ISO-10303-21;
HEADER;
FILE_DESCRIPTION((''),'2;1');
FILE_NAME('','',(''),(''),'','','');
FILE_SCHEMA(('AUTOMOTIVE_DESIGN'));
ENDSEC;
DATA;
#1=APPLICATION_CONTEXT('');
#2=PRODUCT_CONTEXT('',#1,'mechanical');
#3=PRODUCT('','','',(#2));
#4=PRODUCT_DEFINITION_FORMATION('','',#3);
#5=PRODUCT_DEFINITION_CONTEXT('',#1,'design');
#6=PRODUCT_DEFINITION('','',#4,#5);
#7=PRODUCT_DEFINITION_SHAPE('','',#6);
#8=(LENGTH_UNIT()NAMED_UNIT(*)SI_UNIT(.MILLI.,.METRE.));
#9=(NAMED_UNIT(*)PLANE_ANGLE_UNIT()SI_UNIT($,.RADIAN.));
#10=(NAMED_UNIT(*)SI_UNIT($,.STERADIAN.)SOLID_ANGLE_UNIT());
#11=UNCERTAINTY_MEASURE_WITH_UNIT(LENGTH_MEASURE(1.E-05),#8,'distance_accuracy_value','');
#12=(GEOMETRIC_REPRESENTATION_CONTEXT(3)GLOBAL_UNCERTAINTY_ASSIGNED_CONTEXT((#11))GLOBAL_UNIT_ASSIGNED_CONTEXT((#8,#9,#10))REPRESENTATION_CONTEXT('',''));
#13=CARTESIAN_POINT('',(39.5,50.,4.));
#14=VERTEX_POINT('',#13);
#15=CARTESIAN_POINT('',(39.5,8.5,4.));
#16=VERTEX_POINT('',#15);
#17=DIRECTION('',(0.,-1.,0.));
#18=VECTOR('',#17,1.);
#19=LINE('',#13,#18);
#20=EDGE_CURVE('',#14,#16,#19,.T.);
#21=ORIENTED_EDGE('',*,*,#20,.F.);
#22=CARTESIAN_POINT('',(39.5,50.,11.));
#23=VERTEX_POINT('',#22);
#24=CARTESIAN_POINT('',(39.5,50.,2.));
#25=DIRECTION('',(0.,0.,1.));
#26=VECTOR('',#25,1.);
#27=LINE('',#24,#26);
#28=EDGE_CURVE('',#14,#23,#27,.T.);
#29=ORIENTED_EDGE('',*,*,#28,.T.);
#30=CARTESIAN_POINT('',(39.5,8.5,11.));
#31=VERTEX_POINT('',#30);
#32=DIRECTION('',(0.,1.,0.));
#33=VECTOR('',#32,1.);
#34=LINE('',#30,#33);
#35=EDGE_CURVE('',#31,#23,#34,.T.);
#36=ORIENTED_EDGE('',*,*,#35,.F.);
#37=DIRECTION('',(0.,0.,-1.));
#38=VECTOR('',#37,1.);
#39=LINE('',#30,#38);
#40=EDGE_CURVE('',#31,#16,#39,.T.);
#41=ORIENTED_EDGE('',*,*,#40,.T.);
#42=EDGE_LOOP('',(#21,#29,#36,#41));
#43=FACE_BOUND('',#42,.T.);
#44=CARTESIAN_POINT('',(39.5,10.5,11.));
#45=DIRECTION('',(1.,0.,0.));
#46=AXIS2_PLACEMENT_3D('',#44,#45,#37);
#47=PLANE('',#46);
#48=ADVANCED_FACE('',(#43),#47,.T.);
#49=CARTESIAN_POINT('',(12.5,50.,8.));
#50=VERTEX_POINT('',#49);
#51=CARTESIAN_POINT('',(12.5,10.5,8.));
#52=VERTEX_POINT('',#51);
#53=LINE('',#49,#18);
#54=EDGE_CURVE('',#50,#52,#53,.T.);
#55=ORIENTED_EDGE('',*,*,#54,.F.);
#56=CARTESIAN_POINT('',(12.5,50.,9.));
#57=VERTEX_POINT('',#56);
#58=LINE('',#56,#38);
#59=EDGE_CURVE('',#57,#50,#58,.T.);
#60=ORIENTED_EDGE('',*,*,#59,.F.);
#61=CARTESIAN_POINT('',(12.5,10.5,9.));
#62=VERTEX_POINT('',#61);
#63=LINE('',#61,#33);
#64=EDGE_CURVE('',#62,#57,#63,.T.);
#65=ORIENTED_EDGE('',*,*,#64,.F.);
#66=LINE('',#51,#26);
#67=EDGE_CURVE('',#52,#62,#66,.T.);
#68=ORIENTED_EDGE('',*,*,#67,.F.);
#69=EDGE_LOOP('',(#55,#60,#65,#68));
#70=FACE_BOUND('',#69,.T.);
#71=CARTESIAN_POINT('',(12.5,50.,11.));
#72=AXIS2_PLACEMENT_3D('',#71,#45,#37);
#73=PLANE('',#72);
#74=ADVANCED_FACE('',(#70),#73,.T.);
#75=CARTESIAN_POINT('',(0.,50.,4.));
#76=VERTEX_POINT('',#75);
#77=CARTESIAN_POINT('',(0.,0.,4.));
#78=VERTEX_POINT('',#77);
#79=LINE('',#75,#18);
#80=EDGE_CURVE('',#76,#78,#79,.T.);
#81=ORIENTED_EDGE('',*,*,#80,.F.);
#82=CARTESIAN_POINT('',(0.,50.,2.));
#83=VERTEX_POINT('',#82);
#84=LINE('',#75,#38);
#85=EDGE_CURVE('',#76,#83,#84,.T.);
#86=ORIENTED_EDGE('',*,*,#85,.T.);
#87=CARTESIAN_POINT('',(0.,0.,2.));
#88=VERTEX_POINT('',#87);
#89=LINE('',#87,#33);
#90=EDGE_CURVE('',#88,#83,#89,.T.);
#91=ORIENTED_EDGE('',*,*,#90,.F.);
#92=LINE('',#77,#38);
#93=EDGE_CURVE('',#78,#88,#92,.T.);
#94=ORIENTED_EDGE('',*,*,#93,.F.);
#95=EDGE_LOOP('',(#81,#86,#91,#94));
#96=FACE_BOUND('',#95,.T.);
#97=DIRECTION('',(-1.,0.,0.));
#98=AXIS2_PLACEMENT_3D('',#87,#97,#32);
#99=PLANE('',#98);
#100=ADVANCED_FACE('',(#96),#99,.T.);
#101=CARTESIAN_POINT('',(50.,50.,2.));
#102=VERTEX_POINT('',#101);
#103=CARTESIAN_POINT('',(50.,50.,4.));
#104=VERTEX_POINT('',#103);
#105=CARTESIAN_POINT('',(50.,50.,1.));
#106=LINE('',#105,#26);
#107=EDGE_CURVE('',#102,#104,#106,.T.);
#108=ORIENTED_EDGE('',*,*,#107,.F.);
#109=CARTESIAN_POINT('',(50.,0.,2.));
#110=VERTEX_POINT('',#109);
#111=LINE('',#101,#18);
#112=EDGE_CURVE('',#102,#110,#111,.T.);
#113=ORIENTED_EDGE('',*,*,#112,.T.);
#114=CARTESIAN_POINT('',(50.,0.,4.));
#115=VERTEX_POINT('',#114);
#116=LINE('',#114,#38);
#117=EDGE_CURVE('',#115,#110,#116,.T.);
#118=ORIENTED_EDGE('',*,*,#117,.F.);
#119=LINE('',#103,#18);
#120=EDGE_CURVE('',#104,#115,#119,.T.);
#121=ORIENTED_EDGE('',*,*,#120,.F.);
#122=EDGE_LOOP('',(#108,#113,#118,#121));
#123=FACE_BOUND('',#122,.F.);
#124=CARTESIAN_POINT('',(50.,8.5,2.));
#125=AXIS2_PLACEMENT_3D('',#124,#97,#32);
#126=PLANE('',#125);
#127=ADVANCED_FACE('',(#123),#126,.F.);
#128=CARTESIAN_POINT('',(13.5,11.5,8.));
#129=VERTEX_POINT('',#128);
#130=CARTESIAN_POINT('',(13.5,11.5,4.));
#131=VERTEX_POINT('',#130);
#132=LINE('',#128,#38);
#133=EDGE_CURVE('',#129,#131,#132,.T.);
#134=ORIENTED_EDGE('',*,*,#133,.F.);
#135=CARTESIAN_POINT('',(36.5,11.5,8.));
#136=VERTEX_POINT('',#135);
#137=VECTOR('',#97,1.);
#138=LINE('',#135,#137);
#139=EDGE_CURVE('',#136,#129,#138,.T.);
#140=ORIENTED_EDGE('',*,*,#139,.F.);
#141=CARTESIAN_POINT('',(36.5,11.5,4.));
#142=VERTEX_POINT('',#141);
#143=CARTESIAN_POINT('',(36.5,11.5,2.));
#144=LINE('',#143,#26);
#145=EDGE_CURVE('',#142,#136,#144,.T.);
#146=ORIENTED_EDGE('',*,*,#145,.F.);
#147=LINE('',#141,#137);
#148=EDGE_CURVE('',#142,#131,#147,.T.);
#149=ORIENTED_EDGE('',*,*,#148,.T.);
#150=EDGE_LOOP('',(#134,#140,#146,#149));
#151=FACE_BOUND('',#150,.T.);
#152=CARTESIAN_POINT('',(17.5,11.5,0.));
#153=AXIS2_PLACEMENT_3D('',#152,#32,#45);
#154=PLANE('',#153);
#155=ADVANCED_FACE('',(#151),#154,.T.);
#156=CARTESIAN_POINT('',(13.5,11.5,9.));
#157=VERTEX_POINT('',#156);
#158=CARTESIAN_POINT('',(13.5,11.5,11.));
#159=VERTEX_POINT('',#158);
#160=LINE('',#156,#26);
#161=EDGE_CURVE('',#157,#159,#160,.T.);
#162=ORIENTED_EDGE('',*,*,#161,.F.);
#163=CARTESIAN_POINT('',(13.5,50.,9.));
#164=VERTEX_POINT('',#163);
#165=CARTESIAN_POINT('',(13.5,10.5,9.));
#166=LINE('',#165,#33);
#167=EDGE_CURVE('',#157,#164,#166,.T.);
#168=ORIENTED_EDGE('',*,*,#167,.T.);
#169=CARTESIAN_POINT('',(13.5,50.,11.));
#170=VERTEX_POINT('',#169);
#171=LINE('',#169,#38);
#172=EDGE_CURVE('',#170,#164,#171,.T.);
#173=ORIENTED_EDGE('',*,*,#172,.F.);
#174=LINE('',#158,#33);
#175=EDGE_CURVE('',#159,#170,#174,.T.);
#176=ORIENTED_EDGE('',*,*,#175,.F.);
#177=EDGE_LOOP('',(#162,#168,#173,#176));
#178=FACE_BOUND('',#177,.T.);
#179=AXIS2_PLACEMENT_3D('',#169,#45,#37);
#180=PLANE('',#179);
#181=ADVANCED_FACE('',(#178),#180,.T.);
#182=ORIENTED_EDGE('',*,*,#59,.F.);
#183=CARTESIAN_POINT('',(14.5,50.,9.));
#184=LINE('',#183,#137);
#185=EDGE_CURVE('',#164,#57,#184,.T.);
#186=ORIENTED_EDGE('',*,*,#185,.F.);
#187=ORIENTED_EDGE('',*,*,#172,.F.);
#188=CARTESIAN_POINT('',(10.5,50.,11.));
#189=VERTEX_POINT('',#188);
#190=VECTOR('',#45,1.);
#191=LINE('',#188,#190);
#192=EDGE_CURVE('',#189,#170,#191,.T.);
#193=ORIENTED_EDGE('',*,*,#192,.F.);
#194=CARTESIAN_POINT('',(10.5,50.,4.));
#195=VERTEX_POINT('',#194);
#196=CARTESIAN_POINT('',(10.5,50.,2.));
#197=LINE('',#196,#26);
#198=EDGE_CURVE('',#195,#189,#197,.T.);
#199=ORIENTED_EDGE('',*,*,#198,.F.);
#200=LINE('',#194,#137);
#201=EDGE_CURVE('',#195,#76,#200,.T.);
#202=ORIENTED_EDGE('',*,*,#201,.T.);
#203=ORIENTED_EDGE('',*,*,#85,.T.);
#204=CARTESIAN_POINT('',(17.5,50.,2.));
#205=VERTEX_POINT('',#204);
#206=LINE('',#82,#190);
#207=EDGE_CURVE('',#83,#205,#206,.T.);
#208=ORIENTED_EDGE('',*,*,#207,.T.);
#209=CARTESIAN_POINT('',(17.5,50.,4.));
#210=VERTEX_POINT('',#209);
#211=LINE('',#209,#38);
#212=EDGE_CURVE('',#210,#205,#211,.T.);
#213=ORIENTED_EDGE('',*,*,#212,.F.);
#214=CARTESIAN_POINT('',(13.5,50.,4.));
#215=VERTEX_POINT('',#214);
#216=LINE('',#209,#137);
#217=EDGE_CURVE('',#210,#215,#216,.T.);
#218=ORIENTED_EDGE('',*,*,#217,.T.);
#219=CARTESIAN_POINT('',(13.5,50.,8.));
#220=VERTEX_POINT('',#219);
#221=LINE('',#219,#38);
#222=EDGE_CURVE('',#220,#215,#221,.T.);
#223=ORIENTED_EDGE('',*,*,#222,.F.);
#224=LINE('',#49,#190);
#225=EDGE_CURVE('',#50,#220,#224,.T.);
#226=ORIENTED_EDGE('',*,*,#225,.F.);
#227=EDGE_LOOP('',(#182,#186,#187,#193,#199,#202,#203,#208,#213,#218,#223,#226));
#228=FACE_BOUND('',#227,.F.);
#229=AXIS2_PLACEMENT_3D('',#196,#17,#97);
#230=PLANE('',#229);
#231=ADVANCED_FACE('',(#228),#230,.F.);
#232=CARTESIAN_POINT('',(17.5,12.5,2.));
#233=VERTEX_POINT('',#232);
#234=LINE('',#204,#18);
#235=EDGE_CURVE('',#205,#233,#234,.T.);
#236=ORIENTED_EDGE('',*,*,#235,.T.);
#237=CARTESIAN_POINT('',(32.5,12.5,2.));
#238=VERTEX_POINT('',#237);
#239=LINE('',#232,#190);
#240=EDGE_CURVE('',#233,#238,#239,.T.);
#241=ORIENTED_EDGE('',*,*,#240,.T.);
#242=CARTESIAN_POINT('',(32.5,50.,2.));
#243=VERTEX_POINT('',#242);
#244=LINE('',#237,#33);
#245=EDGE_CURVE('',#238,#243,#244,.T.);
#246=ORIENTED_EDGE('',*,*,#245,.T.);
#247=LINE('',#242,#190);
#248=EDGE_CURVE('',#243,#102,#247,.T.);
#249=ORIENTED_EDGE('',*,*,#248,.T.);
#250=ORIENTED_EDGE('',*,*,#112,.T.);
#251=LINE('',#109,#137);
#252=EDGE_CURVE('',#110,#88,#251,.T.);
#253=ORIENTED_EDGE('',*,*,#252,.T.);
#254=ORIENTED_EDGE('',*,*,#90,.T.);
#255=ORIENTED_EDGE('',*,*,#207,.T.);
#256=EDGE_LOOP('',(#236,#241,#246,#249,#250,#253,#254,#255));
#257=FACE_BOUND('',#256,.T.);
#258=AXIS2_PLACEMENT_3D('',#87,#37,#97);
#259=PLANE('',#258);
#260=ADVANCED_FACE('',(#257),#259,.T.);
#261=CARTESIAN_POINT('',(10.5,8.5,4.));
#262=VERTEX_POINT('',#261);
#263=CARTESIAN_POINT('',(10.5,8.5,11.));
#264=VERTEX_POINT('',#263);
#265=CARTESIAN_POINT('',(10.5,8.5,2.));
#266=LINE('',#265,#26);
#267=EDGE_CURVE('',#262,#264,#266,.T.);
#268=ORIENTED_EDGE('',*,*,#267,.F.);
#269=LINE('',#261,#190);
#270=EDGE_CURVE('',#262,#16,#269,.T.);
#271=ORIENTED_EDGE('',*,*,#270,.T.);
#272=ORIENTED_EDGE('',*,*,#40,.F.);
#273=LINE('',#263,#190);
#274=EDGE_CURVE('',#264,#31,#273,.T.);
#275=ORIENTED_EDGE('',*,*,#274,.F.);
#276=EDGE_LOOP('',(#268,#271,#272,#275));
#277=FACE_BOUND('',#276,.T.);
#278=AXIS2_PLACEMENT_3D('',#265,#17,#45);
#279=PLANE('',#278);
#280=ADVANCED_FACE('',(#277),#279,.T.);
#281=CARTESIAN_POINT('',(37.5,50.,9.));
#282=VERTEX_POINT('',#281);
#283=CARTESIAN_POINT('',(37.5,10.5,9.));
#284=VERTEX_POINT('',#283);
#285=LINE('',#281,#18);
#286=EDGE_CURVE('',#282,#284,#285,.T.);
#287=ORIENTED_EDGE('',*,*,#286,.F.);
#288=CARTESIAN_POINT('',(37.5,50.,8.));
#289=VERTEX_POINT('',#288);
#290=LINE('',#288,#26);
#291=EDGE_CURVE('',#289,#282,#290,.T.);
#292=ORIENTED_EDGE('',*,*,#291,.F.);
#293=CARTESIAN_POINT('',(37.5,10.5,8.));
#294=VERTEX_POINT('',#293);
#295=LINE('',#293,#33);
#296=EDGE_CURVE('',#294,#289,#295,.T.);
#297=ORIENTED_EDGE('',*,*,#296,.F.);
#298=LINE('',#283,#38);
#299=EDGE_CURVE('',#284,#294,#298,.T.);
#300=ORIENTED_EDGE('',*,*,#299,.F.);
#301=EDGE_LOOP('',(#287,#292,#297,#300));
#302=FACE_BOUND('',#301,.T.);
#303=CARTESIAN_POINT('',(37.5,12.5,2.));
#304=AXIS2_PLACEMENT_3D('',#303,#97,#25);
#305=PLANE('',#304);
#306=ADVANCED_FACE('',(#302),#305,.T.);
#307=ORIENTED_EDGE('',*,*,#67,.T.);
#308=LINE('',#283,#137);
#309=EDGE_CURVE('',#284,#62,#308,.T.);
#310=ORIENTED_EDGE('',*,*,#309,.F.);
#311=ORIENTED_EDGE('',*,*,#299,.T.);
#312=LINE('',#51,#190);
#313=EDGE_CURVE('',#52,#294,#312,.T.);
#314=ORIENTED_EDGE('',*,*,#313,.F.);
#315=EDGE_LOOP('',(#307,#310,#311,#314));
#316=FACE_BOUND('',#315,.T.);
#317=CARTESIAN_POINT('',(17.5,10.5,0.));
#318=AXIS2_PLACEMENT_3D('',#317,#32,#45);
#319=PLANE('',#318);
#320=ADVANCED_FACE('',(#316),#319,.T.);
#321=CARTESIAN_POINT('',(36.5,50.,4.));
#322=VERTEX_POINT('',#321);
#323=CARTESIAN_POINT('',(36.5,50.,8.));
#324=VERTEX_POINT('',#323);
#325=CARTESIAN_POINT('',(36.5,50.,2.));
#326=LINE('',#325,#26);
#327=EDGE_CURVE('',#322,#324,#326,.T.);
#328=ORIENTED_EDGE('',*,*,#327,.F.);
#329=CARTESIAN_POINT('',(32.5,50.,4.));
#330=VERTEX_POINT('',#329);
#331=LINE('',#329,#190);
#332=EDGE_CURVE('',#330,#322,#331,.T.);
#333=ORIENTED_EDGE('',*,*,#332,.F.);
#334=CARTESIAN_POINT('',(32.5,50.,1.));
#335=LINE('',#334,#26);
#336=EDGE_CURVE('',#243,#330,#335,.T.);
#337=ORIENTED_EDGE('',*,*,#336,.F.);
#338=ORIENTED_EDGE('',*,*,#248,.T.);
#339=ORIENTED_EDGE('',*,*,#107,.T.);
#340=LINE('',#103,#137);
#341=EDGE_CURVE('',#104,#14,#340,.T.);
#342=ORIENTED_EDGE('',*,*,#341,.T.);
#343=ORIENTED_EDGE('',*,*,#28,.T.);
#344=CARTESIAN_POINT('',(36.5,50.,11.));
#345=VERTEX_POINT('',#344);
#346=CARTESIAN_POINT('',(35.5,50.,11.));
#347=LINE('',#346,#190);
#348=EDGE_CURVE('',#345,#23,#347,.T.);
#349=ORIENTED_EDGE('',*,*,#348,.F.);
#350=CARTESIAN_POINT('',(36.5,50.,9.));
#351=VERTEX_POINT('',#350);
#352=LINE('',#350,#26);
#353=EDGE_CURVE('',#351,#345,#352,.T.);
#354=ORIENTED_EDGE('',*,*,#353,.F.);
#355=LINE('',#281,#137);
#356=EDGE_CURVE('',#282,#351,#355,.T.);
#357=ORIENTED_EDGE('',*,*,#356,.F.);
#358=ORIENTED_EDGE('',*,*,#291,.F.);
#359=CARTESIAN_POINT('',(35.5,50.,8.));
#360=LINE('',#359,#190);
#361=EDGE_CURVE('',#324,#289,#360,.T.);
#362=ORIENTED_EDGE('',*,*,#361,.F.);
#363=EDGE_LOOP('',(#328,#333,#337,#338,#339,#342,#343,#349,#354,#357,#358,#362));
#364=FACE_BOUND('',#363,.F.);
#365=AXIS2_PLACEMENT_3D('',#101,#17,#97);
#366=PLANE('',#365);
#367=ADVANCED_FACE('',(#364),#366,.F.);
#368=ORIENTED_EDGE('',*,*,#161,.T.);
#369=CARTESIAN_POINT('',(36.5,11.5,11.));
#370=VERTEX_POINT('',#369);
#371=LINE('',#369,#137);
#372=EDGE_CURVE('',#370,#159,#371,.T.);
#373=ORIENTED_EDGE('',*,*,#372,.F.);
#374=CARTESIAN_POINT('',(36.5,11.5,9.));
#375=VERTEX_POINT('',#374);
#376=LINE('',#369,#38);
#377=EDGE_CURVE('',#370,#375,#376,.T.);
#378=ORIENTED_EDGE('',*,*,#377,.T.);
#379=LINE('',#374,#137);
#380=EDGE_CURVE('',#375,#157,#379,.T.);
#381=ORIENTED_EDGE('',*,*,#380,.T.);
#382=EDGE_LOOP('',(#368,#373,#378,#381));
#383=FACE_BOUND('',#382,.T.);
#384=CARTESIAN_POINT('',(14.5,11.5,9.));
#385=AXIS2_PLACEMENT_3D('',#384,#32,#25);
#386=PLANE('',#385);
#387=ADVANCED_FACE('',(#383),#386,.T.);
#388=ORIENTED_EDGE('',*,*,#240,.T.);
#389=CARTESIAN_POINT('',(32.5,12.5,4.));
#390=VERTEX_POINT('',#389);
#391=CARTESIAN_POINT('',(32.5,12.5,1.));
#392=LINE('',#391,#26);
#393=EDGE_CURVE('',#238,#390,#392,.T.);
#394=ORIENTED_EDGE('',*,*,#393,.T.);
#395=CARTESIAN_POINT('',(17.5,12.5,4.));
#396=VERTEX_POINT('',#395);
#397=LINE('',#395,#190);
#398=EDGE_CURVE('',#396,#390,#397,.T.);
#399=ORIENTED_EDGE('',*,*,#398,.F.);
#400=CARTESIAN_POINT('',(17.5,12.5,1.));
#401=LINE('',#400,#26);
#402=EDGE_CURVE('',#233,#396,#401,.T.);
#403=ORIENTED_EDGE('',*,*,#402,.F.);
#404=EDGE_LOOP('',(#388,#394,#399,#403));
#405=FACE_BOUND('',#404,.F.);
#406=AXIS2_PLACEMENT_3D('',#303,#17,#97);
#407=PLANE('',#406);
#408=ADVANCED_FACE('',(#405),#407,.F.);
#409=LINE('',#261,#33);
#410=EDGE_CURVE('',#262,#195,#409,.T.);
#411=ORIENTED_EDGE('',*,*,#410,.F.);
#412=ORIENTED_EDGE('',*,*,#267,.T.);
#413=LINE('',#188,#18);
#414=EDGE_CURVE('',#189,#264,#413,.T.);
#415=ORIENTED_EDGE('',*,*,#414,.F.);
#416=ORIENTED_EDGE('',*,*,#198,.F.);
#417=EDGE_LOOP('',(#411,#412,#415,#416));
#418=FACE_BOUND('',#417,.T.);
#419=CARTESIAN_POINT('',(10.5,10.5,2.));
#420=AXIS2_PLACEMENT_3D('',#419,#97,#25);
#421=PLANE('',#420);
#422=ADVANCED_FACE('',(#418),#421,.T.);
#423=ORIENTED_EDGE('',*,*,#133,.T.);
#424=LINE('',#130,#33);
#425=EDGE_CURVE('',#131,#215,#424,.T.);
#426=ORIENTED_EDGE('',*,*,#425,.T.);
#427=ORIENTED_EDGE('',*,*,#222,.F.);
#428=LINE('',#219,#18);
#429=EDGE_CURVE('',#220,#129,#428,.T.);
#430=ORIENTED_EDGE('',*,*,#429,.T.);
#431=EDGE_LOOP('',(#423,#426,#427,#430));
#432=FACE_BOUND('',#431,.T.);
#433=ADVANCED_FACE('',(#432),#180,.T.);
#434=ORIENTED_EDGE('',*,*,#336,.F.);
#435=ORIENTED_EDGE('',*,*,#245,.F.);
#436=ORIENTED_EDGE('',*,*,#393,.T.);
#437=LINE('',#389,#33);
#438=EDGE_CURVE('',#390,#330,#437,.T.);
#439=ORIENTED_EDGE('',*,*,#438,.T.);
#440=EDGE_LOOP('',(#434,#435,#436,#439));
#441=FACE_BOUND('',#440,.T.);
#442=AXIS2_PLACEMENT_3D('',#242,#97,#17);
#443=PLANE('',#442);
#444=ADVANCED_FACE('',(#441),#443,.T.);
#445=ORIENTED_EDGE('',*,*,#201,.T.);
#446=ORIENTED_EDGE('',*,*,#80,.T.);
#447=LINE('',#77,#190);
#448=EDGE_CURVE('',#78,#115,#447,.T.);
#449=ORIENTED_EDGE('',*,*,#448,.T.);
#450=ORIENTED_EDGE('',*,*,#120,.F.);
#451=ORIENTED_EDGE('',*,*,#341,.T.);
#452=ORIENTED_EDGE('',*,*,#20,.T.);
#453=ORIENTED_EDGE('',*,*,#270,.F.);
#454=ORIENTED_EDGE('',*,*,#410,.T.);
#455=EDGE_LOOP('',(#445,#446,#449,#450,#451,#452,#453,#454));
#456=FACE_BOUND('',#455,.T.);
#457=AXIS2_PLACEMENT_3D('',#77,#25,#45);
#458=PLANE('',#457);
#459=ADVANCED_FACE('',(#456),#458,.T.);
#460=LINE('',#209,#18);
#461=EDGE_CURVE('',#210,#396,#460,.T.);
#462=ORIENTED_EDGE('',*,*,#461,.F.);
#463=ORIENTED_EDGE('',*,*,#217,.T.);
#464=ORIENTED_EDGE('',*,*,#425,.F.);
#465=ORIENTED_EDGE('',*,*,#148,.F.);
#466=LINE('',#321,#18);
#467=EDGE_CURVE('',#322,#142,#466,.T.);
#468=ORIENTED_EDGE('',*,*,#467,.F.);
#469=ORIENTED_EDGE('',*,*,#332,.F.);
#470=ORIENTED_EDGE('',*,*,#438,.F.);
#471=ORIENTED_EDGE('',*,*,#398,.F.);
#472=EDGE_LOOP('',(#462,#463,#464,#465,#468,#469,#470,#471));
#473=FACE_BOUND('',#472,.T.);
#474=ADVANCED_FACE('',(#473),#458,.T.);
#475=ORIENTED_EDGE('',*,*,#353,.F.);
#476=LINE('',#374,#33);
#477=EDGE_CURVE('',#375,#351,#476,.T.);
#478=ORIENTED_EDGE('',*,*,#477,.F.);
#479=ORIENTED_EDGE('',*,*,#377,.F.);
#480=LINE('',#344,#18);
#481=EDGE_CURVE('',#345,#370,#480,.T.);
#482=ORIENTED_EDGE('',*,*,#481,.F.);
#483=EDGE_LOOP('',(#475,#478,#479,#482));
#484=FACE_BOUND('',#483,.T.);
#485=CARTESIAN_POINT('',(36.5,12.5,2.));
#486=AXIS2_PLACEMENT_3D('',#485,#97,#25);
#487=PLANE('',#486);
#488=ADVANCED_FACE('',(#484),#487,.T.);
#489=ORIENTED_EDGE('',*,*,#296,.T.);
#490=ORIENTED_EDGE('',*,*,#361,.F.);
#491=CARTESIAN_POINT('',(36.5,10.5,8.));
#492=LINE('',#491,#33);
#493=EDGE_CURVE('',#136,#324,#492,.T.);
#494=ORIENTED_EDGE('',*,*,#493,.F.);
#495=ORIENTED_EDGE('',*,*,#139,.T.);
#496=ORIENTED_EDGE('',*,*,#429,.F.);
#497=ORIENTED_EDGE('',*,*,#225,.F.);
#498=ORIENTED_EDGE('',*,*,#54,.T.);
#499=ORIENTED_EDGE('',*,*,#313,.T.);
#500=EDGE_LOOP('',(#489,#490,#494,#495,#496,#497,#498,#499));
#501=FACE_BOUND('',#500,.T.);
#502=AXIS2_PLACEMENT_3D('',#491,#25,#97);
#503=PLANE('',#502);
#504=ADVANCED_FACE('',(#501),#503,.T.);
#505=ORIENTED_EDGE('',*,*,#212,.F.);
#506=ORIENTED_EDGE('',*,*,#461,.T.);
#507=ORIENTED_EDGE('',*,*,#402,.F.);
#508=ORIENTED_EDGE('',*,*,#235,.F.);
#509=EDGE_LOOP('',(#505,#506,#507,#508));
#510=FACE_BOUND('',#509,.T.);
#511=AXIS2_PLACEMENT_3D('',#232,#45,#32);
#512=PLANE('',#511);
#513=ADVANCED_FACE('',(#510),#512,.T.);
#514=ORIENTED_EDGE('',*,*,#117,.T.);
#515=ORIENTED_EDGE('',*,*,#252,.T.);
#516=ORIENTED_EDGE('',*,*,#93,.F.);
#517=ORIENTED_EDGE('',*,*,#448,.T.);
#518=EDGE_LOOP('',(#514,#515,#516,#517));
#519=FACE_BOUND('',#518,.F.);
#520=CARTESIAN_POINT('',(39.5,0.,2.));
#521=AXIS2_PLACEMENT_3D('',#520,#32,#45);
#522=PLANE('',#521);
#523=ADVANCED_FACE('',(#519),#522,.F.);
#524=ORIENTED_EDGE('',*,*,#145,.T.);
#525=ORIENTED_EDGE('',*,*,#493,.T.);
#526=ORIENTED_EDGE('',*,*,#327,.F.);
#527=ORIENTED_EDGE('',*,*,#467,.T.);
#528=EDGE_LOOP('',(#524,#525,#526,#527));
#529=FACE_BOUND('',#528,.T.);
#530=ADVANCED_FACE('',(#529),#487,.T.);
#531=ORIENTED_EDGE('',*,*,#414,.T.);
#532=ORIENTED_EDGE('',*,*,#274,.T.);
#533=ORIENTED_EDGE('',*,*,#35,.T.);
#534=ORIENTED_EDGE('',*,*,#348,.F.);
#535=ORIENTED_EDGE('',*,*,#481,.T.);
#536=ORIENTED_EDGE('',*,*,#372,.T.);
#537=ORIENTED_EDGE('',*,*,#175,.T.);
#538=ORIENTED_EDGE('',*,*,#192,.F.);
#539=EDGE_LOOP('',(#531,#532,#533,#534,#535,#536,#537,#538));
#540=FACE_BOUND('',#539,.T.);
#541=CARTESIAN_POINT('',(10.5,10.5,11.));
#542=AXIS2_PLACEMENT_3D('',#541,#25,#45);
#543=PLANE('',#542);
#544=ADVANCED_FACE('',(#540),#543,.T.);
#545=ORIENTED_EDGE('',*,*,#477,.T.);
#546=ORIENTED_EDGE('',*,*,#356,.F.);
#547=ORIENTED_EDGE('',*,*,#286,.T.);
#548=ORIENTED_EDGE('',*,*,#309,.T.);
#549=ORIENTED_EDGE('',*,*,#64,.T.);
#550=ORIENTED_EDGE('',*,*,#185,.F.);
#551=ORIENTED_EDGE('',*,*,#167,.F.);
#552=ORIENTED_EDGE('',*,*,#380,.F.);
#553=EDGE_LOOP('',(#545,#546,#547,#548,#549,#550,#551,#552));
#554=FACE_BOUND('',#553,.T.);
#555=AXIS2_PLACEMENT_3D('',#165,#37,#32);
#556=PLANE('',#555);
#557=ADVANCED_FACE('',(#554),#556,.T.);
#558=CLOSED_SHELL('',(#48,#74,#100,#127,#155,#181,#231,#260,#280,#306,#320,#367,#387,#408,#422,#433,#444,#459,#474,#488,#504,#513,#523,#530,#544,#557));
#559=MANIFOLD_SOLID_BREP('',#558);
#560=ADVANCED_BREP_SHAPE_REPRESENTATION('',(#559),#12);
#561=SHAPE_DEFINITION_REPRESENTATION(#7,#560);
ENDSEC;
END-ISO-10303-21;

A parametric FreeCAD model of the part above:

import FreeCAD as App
import Part
import Sketcher

V = App.Vector


def add_polygon(sketch, points):
    """Adds a closed chain of lines whose ends are joined by coincident constraints."""
    first, n = sketch.GeometryCount, len(points)
    for a, b in zip(points, points[1:] + points[:1]):
        sketch.addGeometry(Part.LineSegment(App.Vector(*a, 0), App.Vector(*b, 0)), False)
    for i in range(n):
        sketch.addConstraint(Sketcher.Constraint("Coincident", first + i, 2, first + (i + 1) % n, 1))

doc = App.newDocument("Part")
body = doc.addObject("PartDesign::Body", "Body")

# Sketch on XY plane
sketch1 = body.newObject("Sketcher::SketchObject", "Sketch")
sketch1.AttachmentSupport = (doc.getObject("XY_Plane"), [""])
sketch1.MapMode = "FlatFace"
add_polygon(sketch1, [(0, 50), (0, 0), (50, 0), (50, 50)])  # lines 0-3
sketch1.addConstraint([
    Sketcher.Constraint("Vertical", 0),
    Sketcher.Constraint("Horizontal", 1),
    Sketcher.Constraint("Vertical", 2),
    Sketcher.Constraint("Horizontal", 3),
    Sketcher.Constraint("Coincident", 0, 2, -1, 1),
    Sketcher.Constraint("Equal", 3, 0),
    Sketcher.Constraint("DistanceX", 1, 1, 1, 2, 50.0),
])
pad1 = body.newObject("PartDesign::Pad", "Pad")
pad1.Profile = sketch1
pad1.Length = 2

# Sketch on XY plane
sketch2 = body.newObject("Sketcher::SketchObject", "Sketch001")
sketch2.AttachmentSupport = (doc.getObject("XY_Plane"), [""])
sketch2.MapMode = "FlatFace"
sketch2.AttachmentOffset = App.Placement(V(0, 0, 2), App.Rotation())
add_polygon(sketch2, [(32, 12), (32, 50), (18, 50), (18, 12)])  # lines 0-3
sketch2.addConstraint([
    Sketcher.Constraint("Vertical", 0),
    Sketcher.Constraint("Horizontal", 1),
    Sketcher.Constraint("Vertical", 2),
    Sketcher.Constraint("Horizontal", 3),
    Sketcher.Constraint("DistanceX", 1, 2, 1, 1, 15.0),
    Sketcher.Constraint("DistanceY", 0, 1, 0, 2, 37.5),
    Sketcher.Constraint("DistanceY", -1, 1, 0, 2, 50.0),
    Sketcher.Constraint("DistanceX", -1, 1, 0, 2, 32.5),
])
pocket1 = body.newObject("PartDesign::Pocket", "Pocket")
pocket1.Profile = sketch2
pocket1.Length = 2

# Sketch on XY plane
sketch3 = body.newObject("Sketcher::SketchObject", "Sketch002")
sketch3.AttachmentSupport = (doc.getObject("XY_Plane"), [""])
sketch3.MapMode = "FlatFace"
sketch3.AttachmentOffset = App.Placement(V(0, 0, 2), App.Rotation())
add_polygon(sketch3, [(12.5, 12.5), (12.5, 50), (10.5, 50), (10.5, 10.5), (39.5, 10.5), (39.5, 50), (37.5, 50), (37.5, 12.5)])  # lines 0-7
sketch3.addConstraint([
    Sketcher.Constraint("Vertical", 0),
    Sketcher.Constraint("Horizontal", 1),
    Sketcher.Constraint("Vertical", 2),
    Sketcher.Constraint("Horizontal", 3),
    Sketcher.Constraint("Vertical", 4),
    Sketcher.Constraint("Horizontal", 5),
    Sketcher.Constraint("Vertical", 6),
    Sketcher.Constraint("Horizontal", 7),
    Sketcher.Constraint("Horizontal", 1, 2, 4, 2),
    Sketcher.Constraint("Equal", 1, 5),
    Sketcher.Constraint("DistanceX", 1, 2, 1, 1, 2.0),
    Sketcher.Constraint("DistanceX", 3, 1, 3, 2, 29.0),
    Sketcher.Constraint("DistanceY", 2, 2, 2, 1, 39.5),
    Sketcher.Constraint("DistanceY", 3, 2, 6, 2, 2.0),
    Sketcher.Constraint("DistanceX", -1, 1, 3, 2, 39.5),
    Sketcher.Constraint("DistanceY", -1, 1, 0, 2, 50.0),
])
pad2 = body.newObject("PartDesign::Pad", "Pad001")
pad2.Profile = sketch3
pad2.Length = 9

# Sketch on YZ plane
sketch4 = body.newObject("Sketcher::SketchObject", "Sketch003")
sketch4.AttachmentSupport = (doc.getObject("YZ_Plane"), [""])
sketch4.MapMode = "FlatFace"
sketch4.AttachmentOffset = App.Placement(V(0, 0, 37.5), App.Rotation())
add_polygon(sketch4, [(50, 2), (12, 2), (12, 11), (50, 11)])  # lines 0-3
sketch4.addConstraint([
    Sketcher.Constraint("Horizontal", 0),
    Sketcher.Constraint("Vertical", 1),
    Sketcher.Constraint("Horizontal", 2),
    Sketcher.Constraint("Vertical", 3),
    Sketcher.Constraint("DistanceX", 0, 2, 0, 1, 37.5),
    Sketcher.Constraint("DistanceY", 1, 1, 1, 2, 9.0),
    Sketcher.Constraint("DistanceY", -1, 1, 0, 2, 2.0),
    Sketcher.Constraint("DistanceX", -1, 1, 2, 2, 50.0),
])
pad3 = body.newObject("PartDesign::Pad", "Pad002")
pad3.Profile = sketch4
pad3.Length = 2
pad3.Reversed = True

# Sketch on YZ plane
sketch5 = body.newObject("Sketcher::SketchObject", "Sketch004")
sketch5.AttachmentSupport = (doc.getObject("YZ_Plane"), [""])
sketch5.MapMode = "FlatFace"
sketch5.AttachmentOffset = App.Placement(V(0, 0, 35.5), App.Rotation())
add_polygon(sketch5, [(12.5, 8), (12.5, 9), (50, 9), (50, 8)])  # lines 0-3
sketch5.addConstraint([
    Sketcher.Constraint("Vertical", 0),
    Sketcher.Constraint("Horizontal", 1),
    Sketcher.Constraint("Vertical", 2),
    Sketcher.Constraint("Horizontal", 3),
    Sketcher.Constraint("DistanceY", 0, 1, 0, 2, 1.0),
    Sketcher.Constraint("DistanceX", 1, 1, 1, 2, 37.5),
    Sketcher.Constraint("DistanceY", -1, 1, 0, 2, 9.0),
    Sketcher.Constraint("DistanceX", -1, 1, 1, 2, 50.0),
])
pocket2 = body.newObject("PartDesign::Pocket", "Pocket001")
pocket2.Profile = sketch5
pocket2.Length = 1
pocket2.Reversed = True

# Sketch on XZ plane
sketch6 = body.newObject("Sketcher::SketchObject", "Sketch005")
sketch6.AttachmentSupport = (doc.getObject("XZ_Plane"), [""])
sketch6.MapMode = "FlatFace"
sketch6.AttachmentOffset = App.Placement(V(0, 0, -12.5), App.Rotation())
add_polygon(sketch6, [(36, 11), (36, 2), (12, 2), (12, 11)])  # lines 0-3
sketch6.addConstraint([
    Sketcher.Constraint("Vertical", 0),
    Sketcher.Constraint("Horizontal", 1),
    Sketcher.Constraint("Vertical", 2),
    Sketcher.Constraint("Horizontal", 3),
    Sketcher.Constraint("DistanceX", 1, 2, 1, 1, 23.0),
    Sketcher.Constraint("DistanceY", 0, 2, 0, 1, 9.0),
    Sketcher.Constraint("DistanceY", -1, 1, 0, 2, 2.0),
    Sketcher.Constraint("DistanceX", -1, 1, 0, 2, 35.5),
])
pad4 = body.newObject("PartDesign::Pad", "Pad003")
pad4.Profile = sketch6
pad4.Length = 2
pad4.Reversed = True

# Sketch on XZ plane
sketch7 = body.newObject("Sketcher::SketchObject", "Sketch006")
sketch7.AttachmentSupport = (doc.getObject("XZ_Plane"), [""])
sketch7.MapMode = "FlatFace"
sketch7.AttachmentOffset = App.Placement(V(0, 0, -14.5), App.Rotation())
add_polygon(sketch7, [(12.5, 8), (12.5, 9), (36.5, 9), (36.5, 8)])  # lines 0-3
sketch7.addConstraint([
    Sketcher.Constraint("Vertical", 0),
    Sketcher.Constraint("Horizontal", 1),
    Sketcher.Constraint("Vertical", 2),
    Sketcher.Constraint("Horizontal", 3),
    Sketcher.Constraint("DistanceX", 1, 1, 1, 2, 24.0),
    Sketcher.Constraint("DistanceY", 0, 1, 0, 2, 1.0),
    Sketcher.Constraint("DistanceY", -1, 1, 0, 2, 9.0),
    Sketcher.Constraint("DistanceX", -1, 1, 0, 2, 12.5),
])
pocket3 = body.newObject("PartDesign::Pocket", "Pocket002")
pocket3.Profile = sketch7
pocket3.Length = 1
pocket3.Reversed = True

# Sketch on XZ plane
sketch8 = body.newObject("Sketcher::SketchObject", "Sketch007")
sketch8.AttachmentSupport = (doc.getObject("XZ_Plane"), [""])
sketch8.MapMode = "FlatFace"
sketch8.AttachmentOffset = App.Placement(V(0, 0, -12.5), App.Rotation())
add_polygon(sketch8, [(36.5, 8), (35.5, 8), (35.5, 9), (36.5, 9)])  # lines 0-3
sketch8.addConstraint([
    Sketcher.Constraint("Horizontal", 0),
    Sketcher.Constraint("Vertical", 1),
    Sketcher.Constraint("Horizontal", 2),
    Sketcher.Constraint("Vertical", 3),
    Sketcher.Constraint("Equal", 2, 1),
    Sketcher.Constraint("DistanceX", 0, 2, 0, 1, 1.0),
    Sketcher.Constraint("DistanceY", -1, 1, 0, 2, 8.0),
    Sketcher.Constraint("DistanceX", -1, 1, 0, 2, 35.5),
])
pad5 = body.newObject("PartDesign::Pad", "Pad004")
pad5.Profile = sketch8
pad5.Length = 1
pad5.Reversed = True

# Sketch on YZ plane
sketch9 = body.newObject("Sketcher::SketchObject", "Sketch008")
sketch9.AttachmentSupport = (doc.getObject("YZ_Plane"), [""])
sketch9.MapMode = "FlatFace"
sketch9.AttachmentOffset = App.Placement(V(0, 0, 12.5), App.Rotation())
add_polygon(sketch9, [(14, 2), (50, 2), (50, 11), (14, 11)])  # lines 0-3
sketch9.addConstraint([
    Sketcher.Constraint("Horizontal", 0),
    Sketcher.Constraint("Vertical", 1),
    Sketcher.Constraint("Horizontal", 2),
    Sketcher.Constraint("Vertical", 3),
    Sketcher.Constraint("DistanceY", 1, 1, 1, 2, 9.0),
    Sketcher.Constraint("DistanceX", 0, 1, 0, 2, 36.5),
    Sketcher.Constraint("DistanceX", -1, 1, 0, 2, 50.0),
    Sketcher.Constraint("DistanceY", -1, 1, 0, 2, 2.0),
])
pad6 = body.newObject("PartDesign::Pad", "Pad005")
pad6.Profile = sketch9
pad6.Length = 2

# Sketch on YZ plane
sketch10 = body.newObject("Sketcher::SketchObject", "Sketch009")
sketch10.AttachmentSupport = (doc.getObject("YZ_Plane"), [""])
sketch10.MapMode = "FlatFace"
sketch10.AttachmentOffset = App.Placement(V(0, 0, 14.5), App.Rotation())
add_polygon(sketch10, [(12.5, 8), (50, 8), (50, 9), (12.5, 9)])  # lines 0-3
sketch10.addConstraint([
    Sketcher.Constraint("Horizontal", 0),
    Sketcher.Constraint("Vertical", 1),
    Sketcher.Constraint("Horizontal", 2),
    Sketcher.Constraint("Vertical", 3),
    Sketcher.Constraint("DistanceY", 1, 1, 1, 2, 1.0),
    Sketcher.Constraint("DistanceX", 0, 1, 0, 2, 37.5),
    Sketcher.Constraint("DistanceX", -1, 1, 0, 2, 50.0),
    Sketcher.Constraint("DistanceY", -1, 1, 0, 2, 8.0),
])
pocket4 = body.newObject("PartDesign::Pocket", "Pocket003")
pocket4.Profile = sketch10
pocket4.Length = 1

# Sketch on XZ plane
sketch11 = body.newObject("Sketcher::SketchObject", "Sketch010")
sketch11.AttachmentSupport = (doc.getObject("XZ_Plane"), [""])
sketch11.MapMode = "FlatFace"
sketch11.AttachmentOffset = App.Placement(V(0, 0, -10.5), App.Rotation())
add_polygon(sketch11, [(40, 11), (10, 11), (10, 2), (40, 2)])  # lines 0-3
sketch11.addConstraint([
    Sketcher.Constraint("Horizontal", 0),
    Sketcher.Constraint("Vertical", 1),
    Sketcher.Constraint("Horizontal", 2),
    Sketcher.Constraint("Vertical", 3),
    Sketcher.Constraint("DistanceX", 0, 2, 0, 1, 29.0),
    Sketcher.Constraint("DistanceY", 1, 2, 1, 1, 9.0),
    Sketcher.Constraint("DistanceY", -1, 1, 0, 2, 11.0),
    Sketcher.Constraint("DistanceX", -1, 1, 0, 2, 10.5),
])
pad7 = body.newObject("PartDesign::Pad", "Pad006")
pad7.Profile = sketch11
pad7.Length = 2

# Sketch on XZ plane
sketch12 = body.newObject("Sketcher::SketchObject", "Sketch011")
sketch12.AttachmentSupport = (doc.getObject("XZ_Plane"), [""])
sketch12.MapMode = "FlatFace"
sketch12.AttachmentOffset = App.Placement(V(0, 0, -14.5), App.Rotation())
add_polygon(sketch12, [(36, 2), (14, 2), (14, 8), (36, 8)])  # lines 0-3
sketch12.addConstraint([
    Sketcher.Constraint("Horizontal", 0),
    Sketcher.Constraint("Vertical", 1),
    Sketcher.Constraint("Horizontal", 2),
    Sketcher.Constraint("Vertical", 3),
    Sketcher.Constraint("DistanceX", 0, 2, 0, 1, 21.0),
    Sketcher.Constraint("DistanceY", 1, 1, 1, 2, 6.0),
    Sketcher.Constraint("DistanceY", -1, 1, 0, 2, 2.0),
    Sketcher.Constraint("DistanceX", -1, 1, 0, 2, 14.5),
])
pocket5 = body.newObject("PartDesign::Pocket", "Pocket004")
pocket5.Profile = sketch12
pocket5.Length = 4
pocket5.Reversed = True

# Sketch on XZ plane
sketch13 = body.newObject("Sketcher::SketchObject", "Sketch012")
sketch13.AttachmentSupport = (doc.getObject("XZ_Plane"), [""])
sketch13.MapMode = "FlatFace"
sketch13.AttachmentOffset = App.Placement(V(0, 0, -13.5), App.Rotation())
add_polygon(sketch13, [(36.5, 8), (14.5, 8), (14.5, 9), (36.5, 9)])  # lines 0-3
sketch13.addConstraint([
    Sketcher.Constraint("Horizontal", 0),
    Sketcher.Constraint("Vertical", 1),
    Sketcher.Constraint("Horizontal", 2),
    Sketcher.Constraint("Vertical", 3),
    Sketcher.Constraint("DistanceX", 0, 2, 0, 1, 22.0),
    Sketcher.Constraint("DistanceY", 1, 1, 1, 2, 1.0),
    Sketcher.Constraint("DistanceY", -1, 1, 0, 2, 8.0),
    Sketcher.Constraint("DistanceX", -1, 1, 0, 2, 14.5),
])
pocket6 = body.newObject("PartDesign::Pocket", "Pocket005")
pocket6.Profile = sketch13
pocket6.Length = 2
pocket6.Reversed = True

# Sketch on XZ plane
sketch14 = body.newObject("Sketcher::SketchObject", "Sketch013")
sketch14.AttachmentSupport = (doc.getObject("XZ_Plane"), [""])
sketch14.MapMode = "FlatFace"
sketch14.AttachmentOffset = App.Placement(V(0, 0, -12.5), App.Rotation())
add_polygon(sketch14, [(14.5, 9), (14.5, 8), (13.5, 8), (13.5, 9)])  # lines 0-3
sketch14.addConstraint([
    Sketcher.Constraint("Vertical", 0),
    Sketcher.Constraint("Horizontal", 1),
    Sketcher.Constraint("Vertical", 2),
    Sketcher.Constraint("Horizontal", 3),
    Sketcher.Constraint("Equal", 3, 0),
    Sketcher.Constraint("DistanceX", 1, 2, 1, 1, 1.0),
    Sketcher.Constraint("DistanceY", -1, 1, 0, 2, 8.0),
    Sketcher.Constraint("DistanceX", -1, 1, 0, 2, 14.5),
])
pocket7 = body.newObject("PartDesign::Pocket", "Pocket006")
pocket7.Profile = sketch14
pocket7.Length = 2
pocket7.Reversed = True

# Sketch on XZ plane
sketch15 = body.newObject("Sketcher::SketchObject", "Sketch014")
sketch15.AttachmentSupport = (doc.getObject("XZ_Plane"), [""])
sketch15.MapMode = "FlatFace"
sketch15.AttachmentOffset = App.Placement(V(0, 0, -11.5), App.Rotation())
add_polygon(sketch15, [(36.5, 8), (14.5, 8), (14.5, 9), (36.5, 9)])  # lines 0-3
sketch15.addConstraint([
    Sketcher.Constraint("Horizontal", 0),
    Sketcher.Constraint("Vertical", 1),
    Sketcher.Constraint("Horizontal", 2),
    Sketcher.Constraint("Vertical", 3),
    Sketcher.Constraint("DistanceX", 0, 2, 0, 1, 22.0),
    Sketcher.Constraint("DistanceY", 1, 1, 1, 2, 1.0),
    Sketcher.Constraint("DistanceY", -1, 1, 0, 2, 8.0),
    Sketcher.Constraint("DistanceX", -1, 1, 0, 2, 14.5),
])
pocket8 = body.newObject("PartDesign::Pocket", "Pocket007")
pocket8.Profile = sketch15
pocket8.Length = 1
pocket8.Reversed = True

# Sketch on YZ plane
sketch16 = body.newObject("Sketcher::SketchObject", "Sketch015")
sketch16.AttachmentSupport = (doc.getObject("YZ_Plane"), [""])
sketch16.MapMode = "FlatFace"
sketch16.AttachmentOffset = App.Placement(V(0, 0, 36.5), App.Rotation())
add_polygon(sketch16, [(50, 9), (50, 8), (10.5, 8), (10.5, 9)])  # lines 0-3
sketch16.addConstraint([
    Sketcher.Constraint("Vertical", 0),
    Sketcher.Constraint("Horizontal", 1),
    Sketcher.Constraint("Vertical", 2),
    Sketcher.Constraint("Horizontal", 3),
    Sketcher.Constraint("DistanceX", 1, 2, 1, 1, 39.5),
    Sketcher.Constraint("DistanceY", 0, 2, 0, 1, 1.0),
    Sketcher.Constraint("DistanceX", -1, 1, 0, 2, 50.0),
    Sketcher.Constraint("DistanceY", -1, 1, 0, 2, 8.0),
])
pocket9 = body.newObject("PartDesign::Pocket", "Pocket008")
pocket9.Profile = sketch16
pocket9.Length = 1
pocket9.Reversed = True

# Sketch on YZ plane
sketch17 = body.newObject("Sketcher::SketchObject", "Sketch016")
sketch17.AttachmentSupport = (doc.getObject("YZ_Plane"), [""])
sketch17.MapMode = "FlatFace"
sketch17.AttachmentOffset = App.Placement(V(0, 0, 35.5), App.Rotation())
add_polygon(sketch17, [(12, 8), (50, 8), (50, 2), (12, 2)])  # lines 0-3
sketch17.addConstraint([
    Sketcher.Constraint("Horizontal", 0),
    Sketcher.Constraint("Vertical", 1),
    Sketcher.Constraint("Horizontal", 2),
    Sketcher.Constraint("Vertical", 3),
    Sketcher.Constraint("DistanceX", 0, 1, 0, 2, 38.5),
    Sketcher.Constraint("DistanceY", 1, 2, 1, 1, 6.0),
    Sketcher.Constraint("DistanceX", -1, 1, 0, 2, 50.0),
    Sketcher.Constraint("DistanceY", -1, 1, 0, 2, 8.0),
])
pocket10 = body.newObject("PartDesign::Pocket", "Pocket009")
pocket10.Profile = sketch17
pocket10.Length = 1
pocket10.Reversed = True

# Sketch on YZ plane
sketch18 = body.newObject("Sketcher::SketchObject", "Sketch017")
sketch18.AttachmentSupport = (doc.getObject("YZ_Plane"), [""])
sketch18.MapMode = "FlatFace"
sketch18.AttachmentOffset = App.Placement(V(0, 0, 35.5), App.Rotation())
add_polygon(sketch18, [(50, 11), (50, 9), (11.5, 9), (11.5, 11)])  # lines 0-3
sketch18.addConstraint([
    Sketcher.Constraint("Vertical", 0),
    Sketcher.Constraint("Horizontal", 1),
    Sketcher.Constraint("Vertical", 2),
    Sketcher.Constraint("Horizontal", 3),
    Sketcher.Constraint("DistanceX", 1, 2, 1, 1, 38.5),
    Sketcher.Constraint("DistanceY", 0, 2, 0, 1, 2.0),
    Sketcher.Constraint("DistanceX", -1, 1, 0, 2, 50.0),
    Sketcher.Constraint("DistanceY", -1, 1, 0, 2, 9.0),
])
pocket11 = body.newObject("PartDesign::Pocket", "Pocket010")
pocket11.Profile = sketch18
pocket11.Length = 1
pocket11.Reversed = True

# Sketch on YZ plane
sketch19 = body.newObject("Sketcher::SketchObject", "Sketch018")
sketch19.AttachmentSupport = (doc.getObject("YZ_Plane"), [""])
sketch19.MapMode = "FlatFace"
sketch19.AttachmentOffset = App.Placement(V(0, 0, 13.5), App.Rotation())
add_polygon(sketch19, [(50, 8), (50, 9), (10.5, 9), (10.5, 8)])  # lines 0-3
sketch19.addConstraint([
    Sketcher.Constraint("Vertical", 0),
    Sketcher.Constraint("Horizontal", 1),
    Sketcher.Constraint("Vertical", 2),
    Sketcher.Constraint("Horizontal", 3),
    Sketcher.Constraint("DistanceX", 1, 2, 1, 1, 39.5),
    Sketcher.Constraint("DistanceY", 0, 1, 0, 2, 1.0),
    Sketcher.Constraint("DistanceX", -1, 1, 0, 2, 50.0),
    Sketcher.Constraint("DistanceY", -1, 1, 0, 2, 9.0),
])
pocket12 = body.newObject("PartDesign::Pocket", "Pocket011")
pocket12.Profile = sketch19
pocket12.Length = 1

# Sketch on YZ plane
sketch20 = body.newObject("Sketcher::SketchObject", "Sketch019")
sketch20.AttachmentSupport = (doc.getObject("YZ_Plane"), [""])
sketch20.MapMode = "FlatFace"
sketch20.AttachmentOffset = App.Placement(V(0, 0, 14.5), App.Rotation())
add_polygon(sketch20, [(12, 8), (12, 2), (50, 2), (50, 8)])  # lines 0-3
sketch20.addConstraint([
    Sketcher.Constraint("Vertical", 0),
    Sketcher.Constraint("Horizontal", 1),
    Sketcher.Constraint("Vertical", 2),
    Sketcher.Constraint("Horizontal", 3),
    Sketcher.Constraint("DistanceX", 1, 1, 1, 2, 38.5),
    Sketcher.Constraint("DistanceY", 0, 2, 0, 1, 6.0),
    Sketcher.Constraint("DistanceY", -1, 1, 0, 2, 2.0),
    Sketcher.Constraint("DistanceX", -1, 1, 1, 2, 50.0),
])
pocket13 = body.newObject("PartDesign::Pocket", "Pocket012")
pocket13.Profile = sketch20
pocket13.Length = 1

# Sketch on YZ plane
sketch21 = body.newObject("Sketcher::SketchObject", "Sketch020")
sketch21.AttachmentSupport = (doc.getObject("YZ_Plane"), [""])
sketch21.MapMode = "FlatFace"
sketch21.AttachmentOffset = App.Placement(V(0, 0, 14.5), App.Rotation())
add_polygon(sketch21, [(11.5, 11), (11.5, 9), (50, 9), (50, 11)])  # lines 0-3
sketch21.addConstraint([
    Sketcher.Constraint("Vertical", 0),
    Sketcher.Constraint("Horizontal", 1),
    Sketcher.Constraint("Vertical", 2),
    Sketcher.Constraint("Horizontal", 3),
    Sketcher.Constraint("DistanceX", 1, 1, 1, 2, 38.5),
    Sketcher.Constraint("DistanceY", 0, 2, 0, 1, 2.0),
    Sketcher.Constraint("DistanceY", -1, 1, 0, 2, 9.0),
    Sketcher.Constraint("DistanceX", -1, 1, 1, 2, 50.0),
])
pocket14 = body.newObject("PartDesign::Pocket", "Pocket013")
pocket14.Profile = sketch21
pocket14.Length = 1

# Sketch on XZ plane
sketch22 = body.newObject("Sketcher::SketchObject", "Sketch021")
sketch22.AttachmentSupport = (doc.getObject("XZ_Plane"), [""])
sketch22.MapMode = "FlatFace"
sketch22.AttachmentOffset = App.Placement(V(0, 0, -14.5), App.Rotation())
add_polygon(sketch22, [(14.5, 9), (14.5, 11), (35.5, 11), (35.5, 9)])  # lines 0-3
sketch22.addConstraint([
    Sketcher.Constraint("Vertical", 0),
    Sketcher.Constraint("Horizontal", 1),
    Sketcher.Constraint("Vertical", 2),
    Sketcher.Constraint("Horizontal", 3),
    Sketcher.Constraint("DistanceX", 1, 1, 1, 2, 21.0),
    Sketcher.Constraint("DistanceY", 0, 1, 0, 2, 2.0),
    Sketcher.Constraint("DistanceY", -1, 1, 0, 2, 11.0),
    Sketcher.Constraint("DistanceX", -1, 1, 0, 2, 14.5),
])
pocket15 = body.newObject("PartDesign::Pocket", "Pocket014")
pocket15.Profile = sketch22
pocket15.Length = 3
pocket15.Reversed = True

# Sketch on XZ plane
sketch23 = body.newObject("Sketcher::SketchObject", "Sketch022")
sketch23.AttachmentSupport = (doc.getObject("XZ_Plane"), [""])
sketch23.MapMode = "FlatFace"
sketch23.AttachmentOffset = App.Placement(V(0, 0, -11.5), App.Rotation())
add_polygon(sketch23, [(13.5, 8), (14.5, 8), (14.5, 2), (13.5, 2)])  # lines 0-3
sketch23.addConstraint([
    Sketcher.Constraint("Horizontal", 0),
    Sketcher.Constraint("Vertical", 1),
    Sketcher.Constraint("Horizontal", 2),
    Sketcher.Constraint("Vertical", 3),
    Sketcher.Constraint("DistanceX", 0, 1, 0, 2, 1.0),
    Sketcher.Constraint("DistanceY", 1, 2, 1, 1, 6.0),
    Sketcher.Constraint("DistanceY", -1, 1, 0, 2, 8.0),
    Sketcher.Constraint("DistanceX", -1, 1, 0, 2, 14.5),
])
pocket16 = body.newObject("PartDesign::Pocket", "Pocket015")
pocket16.Profile = sketch23
pocket16.Length = 1
pocket16.Reversed = True

# Sketch on XZ plane
sketch24 = body.newObject("Sketcher::SketchObject", "Sketch023")
sketch24.AttachmentSupport = (doc.getObject("XZ_Plane"), [""])
sketch24.MapMode = "FlatFace"
sketch24.AttachmentOffset = App.Placement(V(0, 0, -11.5), App.Rotation())
add_polygon(sketch24, [(36.5, 8), (36.5, 2), (35.5, 2), (35.5, 8)])  # lines 0-3
sketch24.addConstraint([
    Sketcher.Constraint("Vertical", 0),
    Sketcher.Constraint("Horizontal", 1),
    Sketcher.Constraint("Vertical", 2),
    Sketcher.Constraint("Horizontal", 3),
    Sketcher.Constraint("DistanceX", 1, 2, 1, 1, 1.0),
    Sketcher.Constraint("DistanceY", 0, 2, 0, 1, 6.0),
    Sketcher.Constraint("DistanceY", -1, 1, 0, 2, 2.0),
    Sketcher.Constraint("DistanceX", -1, 1, 0, 2, 36.5),
])
pocket17 = body.newObject("PartDesign::Pocket", "Pocket016")
pocket17.Profile = sketch24
pocket17.Length = 1
pocket17.Reversed = True

# Sketch on XZ plane
sketch25 = body.newObject("Sketcher::SketchObject", "Sketch024")
sketch25.AttachmentSupport = (doc.getObject("XZ_Plane"), [""])
sketch25.MapMode = "FlatFace"
sketch25.AttachmentOffset = App.Placement(V(0, 0, -10.5), App.Rotation())
add_polygon(sketch25, [(14, 8), (36, 8), (36, 2), (14, 2)])  # lines 0-3
sketch25.addConstraint([
    Sketcher.Constraint("Horizontal", 0),
    Sketcher.Constraint("Vertical", 1),
    Sketcher.Constraint("Horizontal", 2),
    Sketcher.Constraint("Vertical", 3),
    Sketcher.Constraint("DistanceX", 0, 1, 0, 2, 23.0),
    Sketcher.Constraint("DistanceY", 1, 2, 1, 1, 6.0),
    Sketcher.Constraint("DistanceY", -1, 1, 0, 2, 8.0),
    Sketcher.Constraint("DistanceX", -1, 1, 0, 2, 36.5),
])
pad8 = body.newObject("PartDesign::Pad", "Pad007")
pad8.Profile = sketch25
pad8.Length = 1
pad8.Reversed = True

# Sketch on XY plane
sketch26 = body.newObject("Sketcher::SketchObject", "Sketch025")
sketch26.AttachmentSupport = (doc.getObject("XY_Plane"), [""])
sketch26.MapMode = "FlatFace"
add_polygon(sketch26, [(0, 0), (0, 50), (18, 50), (18, 12), (32, 12), (32, 50), (50, 50), (50, 0)])  # lines 0-7
sketch26.addConstraint([
    Sketcher.Constraint("Vertical", 0),
    Sketcher.Constraint("Horizontal", 1),
    Sketcher.Constraint("Vertical", 2),
    Sketcher.Constraint("Horizontal", 3),
    Sketcher.Constraint("Vertical", 4),
    Sketcher.Constraint("Horizontal", 5),
    Sketcher.Constraint("Vertical", 6),
    Sketcher.Constraint("Horizontal", 7),
    Sketcher.Constraint("Coincident", 7, 2, -1, 1),
    Sketcher.Constraint("Horizontal", 1, 2, 4, 2),
    Sketcher.Constraint("Equal", 1, 5),
    Sketcher.Constraint("Equal", 7, 0),
    Sketcher.Constraint("DistanceX", 3, 1, 3, 2, 15.0),
    Sketcher.Constraint("DistanceX", 7, 2, 7, 1, 50.0),
    Sketcher.Constraint("DistanceY", 2, 2, 2, 1, 37.5),
])
pocket18 = body.newObject("PartDesign::Pocket", "Pocket017")
pocket18.Profile = sketch26
pocket18.Length = 1
pocket18.Reversed = True

# Sketch on XY plane
sketch27 = body.newObject("Sketcher::SketchObject", "Sketch026")
sketch27.AttachmentSupport = (doc.getObject("XY_Plane"), [""])
sketch27.MapMode = "FlatFace"
sketch27.AttachmentOffset = App.Placement(V(0, 0, 2), App.Rotation())
add_polygon(sketch27, [(50, 0), (50, 50), (40, 50), (40, 8), (10, 8), (10, 50), (0, 50), (0, 0)])  # lines 0-7
sketch27.addConstraint([
    Sketcher.Constraint("Vertical", 0),
    Sketcher.Constraint("Horizontal", 1),
    Sketcher.Constraint("Vertical", 2),
    Sketcher.Constraint("Horizontal", 3),
    Sketcher.Constraint("Vertical", 4),
    Sketcher.Constraint("Horizontal", 5),
    Sketcher.Constraint("Vertical", 6),
    Sketcher.Constraint("Horizontal", 7),
    Sketcher.Constraint("Coincident", 6, 2, -1, 1),
    Sketcher.Constraint("Horizontal", 1, 2, 4, 2),
    Sketcher.Constraint("Equal", 1, 5),
    Sketcher.Constraint("Equal", 7, 0),
    Sketcher.Constraint("DistanceX", 3, 2, 3, 1, 29.0),
    Sketcher.Constraint("DistanceX", 7, 1, 7, 2, 50.0),
    Sketcher.Constraint("DistanceY", 2, 2, 2, 1, 41.5),
])
pad9 = body.newObject("PartDesign::Pad", "Pad008")
pad9.Profile = sketch27
pad9.Length = 2

# Sketch on XY plane
sketch28 = body.newObject("Sketcher::SketchObject", "Sketch027")
sketch28.AttachmentSupport = (doc.getObject("XY_Plane"), [""])
sketch28.MapMode = "FlatFace"
sketch28.AttachmentOffset = App.Placement(V(0, 0, 2), App.Rotation())
add_polygon(sketch28, [(17.5, 12.5), (17.5, 50), (13.5, 50), (13.5, 11.5), (36.5, 11.5), (36.5, 50), (32.5, 50), (32.5, 12.5)])  # lines 0-7
sketch28.addConstraint([
    Sketcher.Constraint("Vertical", 0),
    Sketcher.Constraint("Horizontal", 1),
    Sketcher.Constraint("Vertical", 2),
    Sketcher.Constraint("Horizontal", 3),
    Sketcher.Constraint("Vertical", 4),
    Sketcher.Constraint("Horizontal", 5),
    Sketcher.Constraint("Vertical", 6),
    Sketcher.Constraint("Horizontal", 7),
    Sketcher.Constraint("Horizontal", 1, 2, 4, 2),
    Sketcher.Constraint("Equal", 1, 5),
    Sketcher.Constraint("DistanceX", 1, 2, 1, 1, 4.0),
    Sketcher.Constraint("DistanceX", 3, 1, 3, 2, 23.0),
    Sketcher.Constraint("DistanceY", 0, 1, 0, 2, 37.5),
    Sketcher.Constraint("DistanceY", 2, 2, 2, 1, 38.5),
    Sketcher.Constraint("DistanceY", -1, 1, 0, 2, 50.0),
    Sketcher.Constraint("DistanceX", -1, 1, 0, 2, 17.5),
])
pad10 = body.newObject("PartDesign::Pad", "Pad009")
pad10.Profile = sketch28
pad10.Type = "TwoLengths"
pad10.Length = 2
pad10.Length2 = 1

# Sketch on XY plane
sketch29 = body.newObject("Sketcher::SketchObject", "Sketch028")
sketch29.AttachmentSupport = (doc.getObject("XY_Plane"), [""])
sketch29.MapMode = "FlatFace"
sketch29.AttachmentOffset = App.Placement(V(0, 0, 1), App.Rotation())
add_polygon(sketch29, [(32, 12), (32, 50), (50, 50), (50, 0), (0, 0), (0, 50), (18, 50), (18, 12)])  # lines 0-7
sketch29.addConstraint([
    Sketcher.Constraint("Vertical", 0),
    Sketcher.Constraint("Horizontal", 1),
    Sketcher.Constraint("Vertical", 2),
    Sketcher.Constraint("Horizontal", 3),
    Sketcher.Constraint("Vertical", 4),
    Sketcher.Constraint("Horizontal", 5),
    Sketcher.Constraint("Vertical", 6),
    Sketcher.Constraint("Horizontal", 7),
    Sketcher.Constraint("Coincident", 3, 2, -1, 1),
    Sketcher.Constraint("Horizontal", 1, 2, 4, 2),
    Sketcher.Constraint("Equal", 1, 5),
    Sketcher.Constraint("Equal", 3, 2),
    Sketcher.Constraint("DistanceX", 3, 2, 3, 1, 50.0),
    Sketcher.Constraint("DistanceX", 7, 1, 7, 2, 15.0),
    Sketcher.Constraint("DistanceY", 0, 1, 0, 2, 37.5),
])
pocket19 = body.newObject("PartDesign::Pocket", "Pocket018")
pocket19.Profile = sketch29
pocket19.Length = 1
pocket19.Reversed = True

doc.recompute()
